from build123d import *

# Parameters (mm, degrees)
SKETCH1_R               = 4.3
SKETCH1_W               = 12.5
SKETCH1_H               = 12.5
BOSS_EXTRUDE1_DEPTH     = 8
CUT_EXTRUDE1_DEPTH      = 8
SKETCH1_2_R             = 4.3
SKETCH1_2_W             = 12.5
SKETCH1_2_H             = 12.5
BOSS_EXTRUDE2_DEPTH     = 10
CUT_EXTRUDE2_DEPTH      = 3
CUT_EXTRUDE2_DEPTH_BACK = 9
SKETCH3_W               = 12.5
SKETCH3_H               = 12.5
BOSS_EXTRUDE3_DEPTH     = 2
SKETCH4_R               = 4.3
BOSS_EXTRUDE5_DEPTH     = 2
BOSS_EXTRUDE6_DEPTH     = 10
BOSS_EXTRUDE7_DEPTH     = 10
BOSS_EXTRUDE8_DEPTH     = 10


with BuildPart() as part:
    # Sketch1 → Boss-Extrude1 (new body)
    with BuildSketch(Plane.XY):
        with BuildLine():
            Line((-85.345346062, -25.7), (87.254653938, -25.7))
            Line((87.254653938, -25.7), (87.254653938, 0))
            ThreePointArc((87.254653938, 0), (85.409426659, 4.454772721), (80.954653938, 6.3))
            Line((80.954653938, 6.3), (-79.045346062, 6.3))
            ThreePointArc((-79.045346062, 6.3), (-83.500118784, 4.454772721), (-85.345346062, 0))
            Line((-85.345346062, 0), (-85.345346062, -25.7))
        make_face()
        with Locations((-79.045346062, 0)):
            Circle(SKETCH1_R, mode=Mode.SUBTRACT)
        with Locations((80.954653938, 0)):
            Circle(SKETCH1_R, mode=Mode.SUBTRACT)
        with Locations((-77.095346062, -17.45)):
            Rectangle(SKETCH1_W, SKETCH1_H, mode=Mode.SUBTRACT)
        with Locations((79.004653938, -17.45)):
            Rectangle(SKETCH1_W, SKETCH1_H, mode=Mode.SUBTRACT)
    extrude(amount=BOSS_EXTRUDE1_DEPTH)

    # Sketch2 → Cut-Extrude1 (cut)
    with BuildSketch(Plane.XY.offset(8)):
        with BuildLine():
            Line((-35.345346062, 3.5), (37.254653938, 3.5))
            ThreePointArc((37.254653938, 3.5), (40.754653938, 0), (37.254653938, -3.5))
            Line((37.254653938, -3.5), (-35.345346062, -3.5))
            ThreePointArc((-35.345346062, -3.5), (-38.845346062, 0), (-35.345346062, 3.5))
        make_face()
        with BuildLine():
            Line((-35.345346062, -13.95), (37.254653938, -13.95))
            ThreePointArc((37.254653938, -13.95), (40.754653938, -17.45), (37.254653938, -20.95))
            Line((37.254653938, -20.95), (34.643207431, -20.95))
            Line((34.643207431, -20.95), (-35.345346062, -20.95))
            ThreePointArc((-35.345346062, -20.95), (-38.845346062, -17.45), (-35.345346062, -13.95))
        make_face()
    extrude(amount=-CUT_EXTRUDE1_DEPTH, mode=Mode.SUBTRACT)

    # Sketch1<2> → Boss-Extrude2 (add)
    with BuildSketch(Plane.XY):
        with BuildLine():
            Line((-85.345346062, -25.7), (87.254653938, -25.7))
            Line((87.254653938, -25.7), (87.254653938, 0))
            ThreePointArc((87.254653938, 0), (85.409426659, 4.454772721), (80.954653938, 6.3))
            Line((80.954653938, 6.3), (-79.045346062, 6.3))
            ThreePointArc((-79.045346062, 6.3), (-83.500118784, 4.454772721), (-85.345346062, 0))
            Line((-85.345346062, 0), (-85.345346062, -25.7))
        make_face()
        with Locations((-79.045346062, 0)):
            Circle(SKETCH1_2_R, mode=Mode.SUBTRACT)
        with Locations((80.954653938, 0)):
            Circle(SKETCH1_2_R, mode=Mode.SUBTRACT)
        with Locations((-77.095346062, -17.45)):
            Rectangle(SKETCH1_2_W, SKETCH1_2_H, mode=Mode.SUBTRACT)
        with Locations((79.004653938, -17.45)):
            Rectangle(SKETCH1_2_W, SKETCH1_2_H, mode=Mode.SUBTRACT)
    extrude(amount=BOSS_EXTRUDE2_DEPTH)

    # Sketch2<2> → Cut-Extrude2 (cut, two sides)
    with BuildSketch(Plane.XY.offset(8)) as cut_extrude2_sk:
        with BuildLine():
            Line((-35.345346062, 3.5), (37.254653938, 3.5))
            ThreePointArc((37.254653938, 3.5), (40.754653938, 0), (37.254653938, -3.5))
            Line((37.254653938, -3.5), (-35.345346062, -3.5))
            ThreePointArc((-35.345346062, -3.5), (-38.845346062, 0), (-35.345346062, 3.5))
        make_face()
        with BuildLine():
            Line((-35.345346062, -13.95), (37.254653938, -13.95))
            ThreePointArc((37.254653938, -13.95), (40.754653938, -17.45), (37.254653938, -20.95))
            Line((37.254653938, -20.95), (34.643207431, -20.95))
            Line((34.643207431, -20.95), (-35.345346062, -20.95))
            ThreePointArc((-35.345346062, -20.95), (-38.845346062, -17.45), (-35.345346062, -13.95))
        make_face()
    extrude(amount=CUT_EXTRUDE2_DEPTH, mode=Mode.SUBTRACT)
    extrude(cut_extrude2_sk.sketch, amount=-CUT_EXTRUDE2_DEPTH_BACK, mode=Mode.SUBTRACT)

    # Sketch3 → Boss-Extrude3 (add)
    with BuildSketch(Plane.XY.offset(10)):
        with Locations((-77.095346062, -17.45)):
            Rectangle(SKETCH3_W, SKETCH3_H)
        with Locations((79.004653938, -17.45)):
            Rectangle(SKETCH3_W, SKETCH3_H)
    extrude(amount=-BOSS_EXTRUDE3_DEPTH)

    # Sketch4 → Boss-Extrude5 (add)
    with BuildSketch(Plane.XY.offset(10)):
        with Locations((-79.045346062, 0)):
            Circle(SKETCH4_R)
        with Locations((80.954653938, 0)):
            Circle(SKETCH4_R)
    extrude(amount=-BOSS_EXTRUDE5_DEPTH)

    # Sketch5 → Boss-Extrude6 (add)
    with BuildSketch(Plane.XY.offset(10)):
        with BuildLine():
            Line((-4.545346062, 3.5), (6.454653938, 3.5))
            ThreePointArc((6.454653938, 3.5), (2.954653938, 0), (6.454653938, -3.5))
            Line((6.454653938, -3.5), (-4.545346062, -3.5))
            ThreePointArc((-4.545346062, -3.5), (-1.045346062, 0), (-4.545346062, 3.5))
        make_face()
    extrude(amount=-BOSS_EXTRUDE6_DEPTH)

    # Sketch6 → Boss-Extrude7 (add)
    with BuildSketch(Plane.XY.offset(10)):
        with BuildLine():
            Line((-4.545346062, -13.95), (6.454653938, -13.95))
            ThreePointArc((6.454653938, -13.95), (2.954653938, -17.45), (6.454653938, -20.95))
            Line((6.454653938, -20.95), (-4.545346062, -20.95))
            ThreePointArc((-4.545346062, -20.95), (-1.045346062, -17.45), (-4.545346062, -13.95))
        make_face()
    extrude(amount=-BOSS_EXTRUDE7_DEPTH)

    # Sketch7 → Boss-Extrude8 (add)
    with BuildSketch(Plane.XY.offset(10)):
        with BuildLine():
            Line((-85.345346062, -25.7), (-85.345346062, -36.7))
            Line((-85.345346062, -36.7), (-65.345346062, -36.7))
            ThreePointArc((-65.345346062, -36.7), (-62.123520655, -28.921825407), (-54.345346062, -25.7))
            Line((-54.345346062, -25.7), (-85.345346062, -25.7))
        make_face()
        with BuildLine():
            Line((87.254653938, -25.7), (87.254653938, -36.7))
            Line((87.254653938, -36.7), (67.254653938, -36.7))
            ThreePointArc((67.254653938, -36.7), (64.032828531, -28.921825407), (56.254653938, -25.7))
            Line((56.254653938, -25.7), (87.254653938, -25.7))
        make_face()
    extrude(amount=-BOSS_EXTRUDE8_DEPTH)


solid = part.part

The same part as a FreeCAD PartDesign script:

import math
import FreeCAD as App
import Part
import Sketcher

V = App.Vector
Q = App.Units.Quantity


def add_polygon(sketch, points):
    """Adds a closed chain of lines whose ends are joined by coincident constraints."""
    first, n = sketch.GeometryCount, len(points)
    for a, b in zip(points, points[1:] + points[:1]):
        sketch.addGeometry(Part.LineSegment(App.Vector(*a, 0), App.Vector(*b, 0)), False)
    for i in range(n):
        sketch.addConstraint(Sketcher.Constraint("Coincident", first + i, 2, first + (i + 1) % n, 1))

doc = App.newDocument("Part")
body = doc.addObject("PartDesign::Body", "Body")

# Sketch on XY plane
sketch1 = body.newObject("Sketcher::SketchObject", "Sketch")
sketch1.AttachmentSupport = (doc.getObject("XY_Plane"), [""])
sketch1.MapMode = "FlatFace"
sketch1.addGeometry(Part.LineSegment(V(-85.3, -25.7, 0), V(87.3, -25.7, 0)), False)  # 0
sketch1.addGeometry(Part.LineSegment(V(87.3, -25.7, 0), V(87.3, 0, 0)), False)  # 1
sketch1.addGeometry(Part.ArcOfCircle(Part.Circle(V(81, 0, 0), V(0, 0, 1), 6.3), math.radians(0), math.radians(90)), False)  # 2
sketch1.addGeometry(Part.LineSegment(V(81, 6.3, 0), V(-79, 6.3, 0)), False)  # 3
sketch1.addGeometry(Part.ArcOfCircle(Part.Circle(V(-79, 0, 0), V(0, 0, 1), 6.3), math.radians(90), math.radians(180)), False)  # 4
sketch1.addGeometry(Part.LineSegment(V(-85.3, 0, 0), V(-85.3, -25.7, 0)), False)  # 5
add_polygon(sketch1, [(-70.8, -23.7), (-83.3, -23.7), (-83.3, -11.2), (-70.8, -11.2)])  # lines 6-9
add_polygon(sketch1, [(85.3, -23.7), (72.8, -23.7), (72.8, -11.2), (85.3, -11.2)])  # lines 10-13
sketch1.addGeometry(Part.Circle(V(-79, 0, 0), V(0, 0, 1), 4.3), False)  # 14
sketch1.addGeometry(Part.Circle(V(81, 0, 0), V(0, 0, 1), 4.3), False)  # 15
sketch1.addConstraint([
    Sketcher.Constraint("Coincident", 0, 2, 1, 1),
    Sketcher.Constraint("Tangent", 1, 2, 2, 1),
    Sketcher.Constraint("Tangent", 2, 2, 3, 1),
    Sketcher.Constraint("Tangent", 3, 2, 4, 1),
    Sketcher.Constraint("Tangent", 4, 2, 5, 1),
    Sketcher.Constraint("Coincident", 5, 2, 0, 1),
    Sketcher.Constraint("Horizontal", 0),
    Sketcher.Constraint("Vertical", 1),
    Sketcher.Constraint("Horizontal", 3),
    Sketcher.Constraint("Vertical", 5),
    Sketcher.Constraint("Horizontal", 6),
    Sketcher.Constraint("Vertical", 7),
    Sketcher.Constraint("Horizontal", 8),
    Sketcher.Constraint("Vertical", 9),
    Sketcher.Constraint("Horizontal", 10),
    Sketcher.Constraint("Vertical", 11),
    Sketcher.Constraint("Horizontal", 12),
    Sketcher.Constraint("Vertical", 13),
    Sketcher.Constraint("Coincident", 14, 3, 4, 3),
    Sketcher.Constraint("Coincident", 15, 3, 2, 3),
    Sketcher.Constraint("Equal", 2, 4),
    Sketcher.Constraint("Equal", 14, 15),
    Sketcher.Constraint("PointOnObject", 2, 3, -1),
    Sketcher.Constraint("Horizontal", 9, 2, 10, 2),
    Sketcher.Constraint("Horizontal", 8, 2, 11, 2),
    Sketcher.Constraint("Equal", 8, 10),
    Sketcher.Constraint("Equal", 12, 7),
    Sketcher.Constraint("Diameter", 14, Q("8.6 mm")),
    Sketcher.Constraint("Radius", 2, Q("6.3 mm")),
    Sketcher.Constraint("DistanceX", 3, 2, 3, 1, Q("160 mm")),
    Sketcher.Constraint("DistanceX", 6, 2, 6, 1, Q("12.5 mm")),
    Sketcher.Constraint("DistanceY", 1, 1, 1, 2, Q("25.7 mm")),
    Sketcher.Constraint("DistanceX", 5, 2, 6, 2, Q("2 mm")),
    Sketcher.Constraint("DistanceY", 5, 2, 6, 2, Q("2 mm")),
    Sketcher.Constraint("DistanceX", 12, 2, 1, 2, Q("2 mm")),
    Sketcher.Constraint("DistanceX", -1, 1, 2, 3, Q("80.954654 mm")),
])
pad1 = body.newObject("PartDesign::Pad", "Pad")
pad1.Profile = sketch1
pad1.Length = 8

# Sketch on XY plane
sketch2 = body.newObject("Sketcher::SketchObject", "Sketch001")
sketch2.AttachmentSupport = (doc.getObject("XY_Plane"), [""])
sketch2.MapMode = "FlatFace"
sketch2.AttachmentOffset = App.Placement(V(0, 0, 8), App.Rotation())
sketch2.addGeometry([
    Part.LineSegment(V(37.3, 3.5, 0), V(-35.3, 3.5, 0)),  # 0
    Part.ArcOfCircle(Part.Circle(V(-35.3, 0, 0), V(0, 0, 1), 3.5), math.radians(90), math.radians(270)),  # 1
    Part.LineSegment(V(-35.3, -3.5, 0), V(37.3, -3.5, 0)),  # 2
    Part.ArcOfCircle(Part.Circle(V(37.3, 0, 0), V(0, 0, 1), 3.5), math.radians(-90), math.radians(90)),  # 3
    Part.LineSegment(V(37.3, -13.9, 0), V(-35.3, -13.9, 0)),  # 4
    Part.ArcOfCircle(Part.Circle(V(-35.3, -17.4, 0), V(0, 0, 1), 3.5), math.radians(90), math.radians(270)),  # 5
    Part.LineSegment(V(-35.3, -20.9, 0), V(37.3, -20.9, 0)),  # 6
    Part.ArcOfCircle(Part.Circle(V(37.3, -17.4, 0), V(0, 0, 1), 3.5), math.radians(-90), math.radians(90)),  # 7
], False)
sketch2.addConstraint([
    Sketcher.Constraint("Tangent", 0, 2, 1, 1),
    Sketcher.Constraint("Tangent", 1, 2, 2, 1),
    Sketcher.Constraint("Tangent", 2, 2, 3, 1),
    Sketcher.Constraint("Tangent", 3, 2, 0, 1),
    Sketcher.Constraint("Tangent", 4, 2, 5, 1),
    Sketcher.Constraint("Tangent", 5, 2, 6, 1),
    Sketcher.Constraint("Tangent", 6, 2, 7, 1),
    Sketcher.Constraint("Tangent", 7, 2, 4, 1),
    Sketcher.Constraint("Horizontal", 0),
    Sketcher.Constraint("Horizontal", 2),
    Sketcher.Constraint("Horizontal", 4),
    Sketcher.Constraint("Horizontal", 6),
    Sketcher.Constraint("Equal", 3, 5),
    Sketcher.Constraint("PointOnObject", 1, 3, -1),
    Sketcher.Constraint("Vertical", 1, 3, 5, 3),
    Sketcher.Constraint("Vertical", 3, 3, 7, 3),
    Sketcher.Constraint("Radius", 1, Q("3.5 mm")),
    Sketcher.Constraint("DistanceX", 0, 2, 0, 1, Q("72.6 mm")),
    Sketcher.Constraint("DistanceY", 5, 3, -1, 1, Q("17.45 mm")),
    Sketcher.Constraint("DistanceX", 1, 3, -1, 1, Q("35.345346 mm")),
])
pocket1 = body.newObject("PartDesign::Pocket", "Pocket")
pocket1.Profile = sketch2
pocket1.Length = 8

# Sketch on XY plane
sketch3 = body.newObject("Sketcher::SketchObject", "Sketch002")
sketch3.AttachmentSupport = (doc.getObject("XY_Plane"), [""])
sketch3.MapMode = "FlatFace"
sketch3.addGeometry(Part.LineSegment(V(-85.3, -25.7, 0), V(87.3, -25.7, 0)), False)  # 0
sketch3.addGeometry(Part.LineSegment(V(87.3, -25.7, 0), V(87.3, 0, 0)), False)  # 1
sketch3.addGeometry(Part.ArcOfCircle(Part.Circle(V(81, 0, 0), V(0, 0, 1), 6.3), math.radians(0), math.radians(90)), False)  # 2
sketch3.addGeometry(Part.LineSegment(V(81, 6.3, 0), V(-79, 6.3, 0)), False)  # 3
sketch3.addGeometry(Part.ArcOfCircle(Part.Circle(V(-79, 0, 0), V(0, 0, 1), 6.3), math.radians(90), math.radians(180)), False)  # 4
sketch3.addGeometry(Part.LineSegment(V(-85.3, 0, 0), V(-85.3, -25.7, 0)), False)  # 5
add_polygon(sketch3, [(-70.8, -23.7), (-83.3, -23.7), (-83.3, -11.2), (-70.8, -11.2)])  # lines 6-9
add_polygon(sketch3, [(85.3, -23.7), (72.8, -23.7), (72.8, -11.2), (85.3, -11.2)])  # lines 10-13
sketch3.addGeometry(Part.Circle(V(-79, 0, 0), V(0, 0, 1), 4.3), False)  # 14
sketch3.addGeometry(Part.Circle(V(81, 0, 0), V(0, 0, 1), 4.3), False)  # 15
sketch3.addConstraint([
    Sketcher.Constraint("Coincident", 0, 2, 1, 1),
    Sketcher.Constraint("Tangent", 1, 2, 2, 1),
    Sketcher.Constraint("Tangent", 2, 2, 3, 1),
    Sketcher.Constraint("Tangent", 3, 2, 4, 1),
    Sketcher.Constraint("Tangent", 4, 2, 5, 1),
    Sketcher.Constraint("Coincident", 5, 2, 0, 1),
    Sketcher.Constraint("Horizontal", 0),
    Sketcher.Constraint("Vertical", 1),
    Sketcher.Constraint("Horizontal", 3),
    Sketcher.Constraint("Vertical", 5),
    Sketcher.Constraint("Horizontal", 6),
    Sketcher.Constraint("Vertical", 7),
    Sketcher.Constraint("Horizontal", 8),
    Sketcher.Constraint("Vertical", 9),
    Sketcher.Constraint("Horizontal", 10),
    Sketcher.Constraint("Vertical", 11),
    Sketcher.Constraint("Horizontal", 12),
    Sketcher.Constraint("Vertical", 13),
    Sketcher.Constraint("Coincident", 14, 3, 4, 3),
    Sketcher.Constraint("Coincident", 15, 3, 2, 3),
    Sketcher.Constraint("Equal", 2, 4),
    Sketcher.Constraint("Equal", 14, 15),
    Sketcher.Constraint("PointOnObject", 2, 3, -1),
    Sketcher.Constraint("Horizontal", 9, 2, 10, 2),
    Sketcher.Constraint("Horizontal", 8, 2, 11, 2),
    Sketcher.Constraint("Equal", 8, 10),
    Sketcher.Constraint("Equal", 12, 7),
    Sketcher.Constraint("Diameter", 14, Q("8.6 mm")),
    Sketcher.Constraint("Radius", 2, Q("6.3 mm")),
    Sketcher.Constraint("DistanceX", 3, 2, 3, 1, Q("160 mm")),
    Sketcher.Constraint("DistanceX", 6, 2, 6, 1, Q("12.5 mm")),
    Sketcher.Constraint("DistanceY", 1, 1, 1, 2, Q("25.7 mm")),
    Sketcher.Constraint("DistanceX", 5, 2, 6, 2, Q("2 mm")),
    Sketcher.Constraint("DistanceY", 5, 2, 6, 2, Q("2 mm")),
    Sketcher.Constraint("DistanceX", 12, 2, 1, 2, Q("2 mm")),
    Sketcher.Constraint("DistanceX", -1, 1, 2, 3, Q("80.954654 mm")),
])
pad2 = body.newObject("PartDesign::Pad", "Pad001")
pad2.Profile = sketch3
pad2.Length = 10

# Sketch on XY plane
sketch4 = body.newObject("Sketcher::SketchObject", "Sketch003")
sketch4.AttachmentSupport = (doc.getObject("XY_Plane"), [""])
sketch4.MapMode = "FlatFace"
sketch4.AttachmentOffset = App.Placement(V(0, 0, 8), App.Rotation())
sketch4.addGeometry([
    Part.LineSegment(V(37.3, 3.5, 0), V(-35.3, 3.5, 0)),  # 0
    Part.ArcOfCircle(Part.Circle(V(-35.3, 0, 0), V(0, 0, 1), 3.5), math.radians(90), math.radians(270)),  # 1
    Part.LineSegment(V(-35.3, -3.5, 0), V(37.3, -3.5, 0)),  # 2
    Part.ArcOfCircle(Part.Circle(V(37.3, 0, 0), V(0, 0, 1), 3.5), math.radians(-90), math.radians(90)),  # 3
    Part.LineSegment(V(37.3, -13.9, 0), V(-35.3, -13.9, 0)),  # 4
    Part.ArcOfCircle(Part.Circle(V(-35.3, -17.4, 0), V(0, 0, 1), 3.5), math.radians(90), math.radians(270)),  # 5
    Part.LineSegment(V(-35.3, -20.9, 0), V(37.3, -20.9, 0)),  # 6
    Part.ArcOfCircle(Part.Circle(V(37.3, -17.4, 0), V(0, 0, 1), 3.5), math.radians(-90), math.radians(90)),  # 7
], False)
sketch4.addConstraint([
    Sketcher.Constraint("Tangent", 0, 2, 1, 1),
    Sketcher.Constraint("Tangent", 1, 2, 2, 1),
    Sketcher.Constraint("Tangent", 2, 2, 3, 1),
    Sketcher.Constraint("Tangent", 3, 2, 0, 1),
    Sketcher.Constraint("Tangent", 4, 2, 5, 1),
    Sketcher.Constraint("Tangent", 5, 2, 6, 1),
    Sketcher.Constraint("Tangent", 6, 2, 7, 1),
    Sketcher.Constraint("Tangent", 7, 2, 4, 1),
    Sketcher.Constraint("Horizontal", 0),
    Sketcher.Constraint("Horizontal", 2),
    Sketcher.Constraint("Horizontal", 4),
    Sketcher.Constraint("Horizontal", 6),
    Sketcher.Constraint("Equal", 3, 5),
    Sketcher.Constraint("PointOnObject", 1, 3, -1),
    Sketcher.Constraint("Vertical", 1, 3, 5, 3),
    Sketcher.Constraint("Vertical", 3, 3, 7, 3),
    Sketcher.Constraint("Radius", 1, Q("3.5 mm")),
    Sketcher.Constraint("DistanceX", 0, 2, 0, 1, Q("72.6 mm")),
    Sketcher.Constraint("DistanceY", 5, 3, -1, 1, Q("17.45 mm")),
    Sketcher.Constraint("DistanceX", 1, 3, -1, 1, Q("35.345346 mm")),
])
pocket2 = body.newObject("PartDesign::Pocket", "Pocket001")
pocket2.Profile = sketch4
pocket2.Type = "ThroughAll"
pocket2.Midplane = True

# Sketch on XY plane
sketch5 = body.newObject("Sketcher::SketchObject", "Sketch004")
sketch5.AttachmentSupport = (doc.getObject("XY_Plane"), [""])
sketch5.MapMode = "FlatFace"
sketch5.AttachmentOffset = App.Placement(V(0, 0, 10), App.Rotation())
add_polygon(sketch5, [(-83, -11), (-83, -24), (-71, -24), (-71, -11)])  # lines 0-3
add_polygon(sketch5, [(73, -11), (73, -24), (85, -24), (85, -11)])  # lines 4-7
sketch5.addConstraint([
    Sketcher.Constraint("Vertical", 0),
    Sketcher.Constraint("Horizontal", 1),
    Sketcher.Constraint("Vertical", 2),
    Sketcher.Constraint("Horizontal", 3),
    Sketcher.Constraint("Vertical", 4),
    Sketcher.Constraint("Horizontal", 5),
    Sketcher.Constraint("Vertical", 6),
    Sketcher.Constraint("Horizontal", 7),
    Sketcher.Constraint("Horizontal", 1, 2, 4, 2),
    Sketcher.Constraint("Horizontal", 3, 2, 6, 2),
    Sketcher.Constraint("Equal", 3, 5),
    Sketcher.Constraint("Equal", 7, 0),
    Sketcher.Constraint("DistanceX", 1, 1, 1, 2, Q("12.5 mm")),
    Sketcher.Constraint("DistanceY", 0, 2, -1, 1, Q("23.7 mm")),
    Sketcher.Constraint("DistanceX", 1, 2, 4, 2, Q("143.6 mm")),
    Sketcher.Constraint("DistanceX", 0, 2, -1, 1, Q("83.345346 mm")),
])
pad3 = body.newObject("PartDesign::Pad", "Pad002")
pad3.Profile = sketch5
pad3.Length = 2
pad3.Reversed = True

# Sketch on XY plane
sketch6 = body.newObject("Sketcher::SketchObject", "Sketch005")
sketch6.AttachmentSupport = (doc.getObject("XY_Plane"), [""])
sketch6.MapMode = "FlatFace"
sketch6.AttachmentOffset = App.Placement(V(0, 0, 10), App.Rotation())
sketch6.addGeometry([
    Part.Circle(V(-79, 0, 0), V(0, 0, 1), 4.3),
    Part.Circle(V(81, 0, 0), V(0, 0, 1), 4.3),
], False)
sketch6.addConstraint([
    Sketcher.Constraint("Equal", 0, 1),
    Sketcher.Constraint("PointOnObject", 0, 3, -1),
    Sketcher.Constraint("PointOnObject", 1, 3, -1),
    Sketcher.Constraint("Diameter", 0, Q("8.6 mm")),
    Sketcher.Constraint("DistanceX", 0, 3, 1, 3, Q("160 mm")),
    Sketcher.Constraint("DistanceX", 0, 3, -1, 1, Q("79.045346 mm")),
])
pad4 = body.newObject("PartDesign::Pad", "Pad003")
pad4.Profile = sketch6
pad4.Length = 2
pad4.Reversed = True

# Sketch on XY plane
sketch7 = body.newObject("Sketcher::SketchObject", "Sketch006")
sketch7.AttachmentSupport = (doc.getObject("XY_Plane"), [""])
sketch7.MapMode = "FlatFace"
sketch7.AttachmentOffset = App.Placement(V(0, 0, 10), App.Rotation())
sketch7.addGeometry([
    Part.LineSegment(V(6.5, 3.5, 0), V(-4.5, 3.5, 0)),
    Part.ArcOfCircle(Part.Circle(V(-4.5, 0, 0), V(0, 0, 1), 3.5), math.radians(-90), math.radians(90)),
    Part.LineSegment(V(-4.5, -3.5, 0), V(6.5, -3.5, 0)),
    Part.ArcOfCircle(Part.Circle(V(6.5, 0, 0), V(0, 0, 1), 3.5), math.radians(90), math.radians(270)),
], False)
sketch7.addConstraint([
    Sketcher.Constraint("Tangent", 0, 2, 1, 2),
    Sketcher.Constraint("Tangent", 1, 1, 2, 1),
    Sketcher.Constraint("Tangent", 2, 2, 3, 2),
    Sketcher.Constraint("Tangent", 3, 1, 0, 1),
    Sketcher.Constraint("Horizontal", 0),
    Sketcher.Constraint("Horizontal", 2),
    Sketcher.Constraint("PointOnObject", 1, 3, -1),
    Sketcher.Constraint("Radius", 1, Q("3.5 mm")),
    Sketcher.Constraint("DistanceX", 0, 2, 0, 1, Q("11 mm")),
    Sketcher.Constraint("DistanceX", 1, 3, -1, 1, Q("4.545346 mm")),
])
pad5 = body.newObject("PartDesign::Pad", "Pad004")
pad5.Profile = sketch7
pad5.Length = 10
pad5.Reversed = True

# Sketch on XY plane
sketch8 = body.newObject("Sketcher::SketchObject", "Sketch007")
sketch8.AttachmentSupport = (doc.getObject("XY_Plane"), [""])
sketch8.MapMode = "FlatFace"
sketch8.AttachmentOffset = App.Placement(V(0, 0, 10), App.Rotation())
sketch8.addGeometry([
    Part.LineSegment(V(6.5, -13.9, 0), V(-4.5, -13.9, 0)),
    Part.ArcOfCircle(Part.Circle(V(-4.5, -17.4, 0), V(0, 0, 1), 3.5), math.radians(-90), math.radians(90)),
    Part.LineSegment(V(-4.5, -20.9, 0), V(6.5, -20.9, 0)),
    Part.ArcOfCircle(Part.Circle(V(6.5, -17.4, 0), V(0, 0, 1), 3.5), math.radians(90), math.radians(270)),
], False)
sketch8.addConstraint([
    Sketcher.Constraint("Tangent", 0, 2, 1, 2),
    Sketcher.Constraint("Tangent", 1, 1, 2, 1),
    Sketcher.Constraint("Tangent", 2, 2, 3, 2),
    Sketcher.Constraint("Tangent", 3, 1, 0, 1),
    Sketcher.Constraint("Horizontal", 0),
    Sketcher.Constraint("Horizontal", 2),
    Sketcher.Constraint("Radius", 1, Q("3.5 mm")),
    Sketcher.Constraint("DistanceX", 0, 2, 0, 1, Q("11 mm")),
    Sketcher.Constraint("DistanceY", 1, 3, -1, 1, Q("17.45 mm")),
    Sketcher.Constraint("DistanceX", 1, 3, -1, 1, Q("4.545346 mm")),
])
pad6 = body.newObject("PartDesign::Pad", "Pad005")
pad6.Profile = sketch8
pad6.Length = 10
pad6.Reversed = True

# Sketch on XY plane
sketch9 = body.newObject("Sketcher::SketchObject", "Sketch008")
sketch9.AttachmentSupport = (doc.getObject("XY_Plane"), [""])
sketch9.MapMode = "FlatFace"
sketch9.AttachmentOffset = App.Placement(V(0, 0, 10), App.Rotation())
sketch9.addGeometry([
    Part.LineSegment(V(-85, -26, 0), V(-85, -37, 0)),  # 0
    Part.LineSegment(V(-85, -37, 0), V(-65, -37, 0)),  # 1
    Part.ArcOfCircle(Part.Circle(V(-54, -37, 0), V(0, 0, 1), 11), math.radians(90), math.radians(180)),  # 2
    Part.LineSegment(V(-54, -26, 0), V(-85, -26, 0)),  # 3
    Part.LineSegment(V(87, -37, 0), V(87, -26, 0)),  # 4
    Part.LineSegment(V(87, -26, 0), V(56, -26, 0)),  # 5
    Part.ArcOfCircle(Part.Circle(V(56, -37, 0), V(0, 0, 1), 11), math.radians(0), math.radians(90)),  # 6
    Part.LineSegment(V(67, -37, 0), V(87, -37, 0)),  # 7
], False)
sketch9.addConstraint([
    Sketcher.Constraint("Coincident", 0, 2, 1, 1),
    Sketcher.Constraint("Coincident", 1, 2, 2, 2),
    Sketcher.Constraint("Tangent", 2, 1, 3, 1),
    Sketcher.Constraint("Coincident", 3, 2, 0, 1),
    Sketcher.Constraint("Coincident", 4, 2, 5, 1),
    Sketcher.Constraint("Tangent", 5, 2, 6, 2),
    Sketcher.Constraint("Coincident", 6, 1, 7, 1),
    Sketcher.Constraint("Coincident", 7, 2, 4, 1),
    Sketcher.Constraint("Vertical", 0),
    Sketcher.Constraint("Horizontal", 1),
    Sketcher.Constraint("Horizontal", 3),
    Sketcher.Constraint("Vertical", 4),
    Sketcher.Constraint("Horizontal", 5),
    Sketcher.Constraint("Horizontal", 7),
    Sketcher.Constraint("Equal", 2, 6),
    Sketcher.Constraint("Horizontal", 2, 3, 6, 3),
    Sketcher.Constraint("Horizontal", 6, 3, 0, 2),
    Sketcher.Constraint("Horizontal", 1, 2, 6, 1),
    Sketcher.Constraint("Equal", 3, 5),
    Sketcher.Constraint("Radius", 2, Q("11 mm")),
    Sketcher.Constraint("DistanceX", 1, 1, 1, 2, Q("20 mm")),
    Sketcher.Constraint("DistanceY", 2, 3, -1, 1, Q("36.7 mm")),
    Sketcher.Constraint("DistanceX", 2, 3, 6, 3, Q("110.6 mm")),
    Sketcher.Constraint("DistanceX", 2, 3, -1, 1, Q("54.345346 mm")),
])
pad7 = body.newObject("PartDesign::Pad", "Pad006")
pad7.Profile = sketch9
pad7.Length = 10
pad7.Reversed = True

doc.recompute()
